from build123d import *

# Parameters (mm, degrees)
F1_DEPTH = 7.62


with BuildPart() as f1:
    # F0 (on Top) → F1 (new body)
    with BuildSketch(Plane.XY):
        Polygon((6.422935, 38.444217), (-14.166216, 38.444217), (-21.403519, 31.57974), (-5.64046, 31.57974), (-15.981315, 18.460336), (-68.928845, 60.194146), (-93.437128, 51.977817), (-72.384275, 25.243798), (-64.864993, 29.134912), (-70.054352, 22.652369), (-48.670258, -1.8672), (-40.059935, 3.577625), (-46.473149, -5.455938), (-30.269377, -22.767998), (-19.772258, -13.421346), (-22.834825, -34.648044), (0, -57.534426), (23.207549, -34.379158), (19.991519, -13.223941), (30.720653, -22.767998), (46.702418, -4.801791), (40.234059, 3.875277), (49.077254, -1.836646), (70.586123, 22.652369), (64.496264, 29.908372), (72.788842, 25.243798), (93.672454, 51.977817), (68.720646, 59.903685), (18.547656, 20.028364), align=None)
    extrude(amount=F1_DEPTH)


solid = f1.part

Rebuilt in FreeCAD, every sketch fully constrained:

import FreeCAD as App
import Part
import Sketcher
Q = App.Units.Quantity

doc = App.newDocument("Part")
params = doc.addObject("Spreadsheet::Sheet", "Params")
for row, (alias, value) in enumerate([
    ("pad1_length", "0.3 in"),
], start=1):
    params.set(f"A{row}", alias)
    params.set(f"B{row}", "=" + value)
    params.setAlias(f"B{row}", alias)

body = doc.addObject("PartDesign::Body", "Body")

# Sketch on XY plane
sketch1 = doc.addObject("Sketcher::SketchObject", "Sketch")
body.addObject(sketch1)
sketch1.AttachmentSupport = (doc.XY_Plane, [""])
sketch1.MapMode = "FlatFace"
sketch1.addGeometry(Part.LineSegment(App.Vector(6, 38, 0), App.Vector(-14, 38, 0)), False)
sketch1.addGeometry(Part.LineSegment(App.Vector(-14, 38, 0), App.Vector(-21, 32, 0)), False)
sketch1.addGeometry(Part.LineSegment(App.Vector(-21, 32, 0), App.Vector(-6, 32, 0)), False)
sketch1.addGeometry(Part.LineSegment(App.Vector(-6, 32, 0), App.Vector(-16, 18, 0)), False)
sketch1.addGeometry(Part.LineSegment(App.Vector(-16, 18, 0), App.Vector(-69, 60, 0)), False)
sketch1.addGeometry(Part.LineSegment(App.Vector(-69, 60, 0), App.Vector(-93, 52, 0)), False)
sketch1.addGeometry(Part.LineSegment(App.Vector(-93, 52, 0), App.Vector(-72, 25, 0)), False)
sketch1.addGeometry(Part.LineSegment(App.Vector(-72, 25, 0), App.Vector(-65, 29, 0)), False)
sketch1.addGeometry(Part.LineSegment(App.Vector(-65, 29, 0), App.Vector(-70, 23, 0)), False)
sketch1.addGeometry(Part.LineSegment(App.Vector(-70, 23, 0), App.Vector(-49, -2, 0)), False)
sketch1.addGeometry(Part.LineSegment(App.Vector(-49, -2, 0), App.Vector(-40, 4, 0)), False)
sketch1.addGeometry(Part.LineSegment(App.Vector(-40, 4, 0), App.Vector(-46, -5, 0)), False)
sketch1.addGeometry(Part.LineSegment(App.Vector(-46, -5, 0), App.Vector(-30, -23, 0)), False)
sketch1.addGeometry(Part.LineSegment(App.Vector(-30, -23, 0), App.Vector(-20, -13, 0)), False)
sketch1.addGeometry(Part.LineSegment(App.Vector(-20, -13, 0), App.Vector(-23, -35, 0)), False)
sketch1.addGeometry(Part.LineSegment(App.Vector(-23, -35, 0), App.Vector(0, -58, 0)), False)
sketch1.addGeometry(Part.LineSegment(App.Vector(0, -58, 0), App.Vector(23, -34, 0)), False)
sketch1.addGeometry(Part.LineSegment(App.Vector(23, -34, 0), App.Vector(20, -13, 0)), False)
sketch1.addGeometry(Part.LineSegment(App.Vector(20, -13, 0), App.Vector(31, -23, 0)), False)
sketch1.addGeometry(Part.LineSegment(App.Vector(31, -23, 0), App.Vector(47, -5, 0)), False)
sketch1.addGeometry(Part.LineSegment(App.Vector(47, -5, 0), App.Vector(40, 4, 0)), False)
sketch1.addGeometry(Part.LineSegment(App.Vector(40, 4, 0), App.Vector(49, -2, 0)), False)
sketch1.addGeometry(Part.LineSegment(App.Vector(49, -2, 0), App.Vector(71, 23, 0)), False)
sketch1.addGeometry(Part.LineSegment(App.Vector(71, 23, 0), App.Vector(64, 30, 0)), False)
sketch1.addGeometry(Part.LineSegment(App.Vector(64, 30, 0), App.Vector(73, 25, 0)), False)
sketch1.addGeometry(Part.LineSegment(App.Vector(73, 25, 0), App.Vector(94, 52, 0)), False)
sketch1.addGeometry(Part.LineSegment(App.Vector(94, 52, 0), App.Vector(69, 60, 0)), False)
sketch1.addGeometry(Part.LineSegment(App.Vector(69, 60, 0), App.Vector(19, 20, 0)), False)
sketch1.addGeometry(Part.LineSegment(App.Vector(19, 20, 0), App.Vector(6, 38, 0)), False)
sketch1.addConstraint(Sketcher.Constraint("Coincident", 0, 2, 1, 1))
sketch1.addConstraint(Sketcher.Constraint("Coincident", 1, 2, 2, 1))
sketch1.addConstraint(Sketcher.Constraint("Coincident", 2, 2, 3, 1))
sketch1.addConstraint(Sketcher.Constraint("Coincident", 3, 2, 4, 1))
sketch1.addConstraint(Sketcher.Constraint("Coincident", 4, 2, 5, 1))
sketch1.addConstraint(Sketcher.Constraint("Coincident", 5, 2, 6, 1))
sketch1.addConstraint(Sketcher.Constraint("Coincident", 6, 2, 7, 1))
sketch1.addConstraint(Sketcher.Constraint("Coincident", 7, 2, 8, 1))
sketch1.addConstraint(Sketcher.Constraint("Coincident", 8, 2, 9, 1))
sketch1.addConstraint(Sketcher.Constraint("Coincident", 9, 2, 10, 1))
sketch1.addConstraint(Sketcher.Constraint("Coincident", 10, 2, 11, 1))
sketch1.addConstraint(Sketcher.Constraint("Coincident", 11, 2, 12, 1))
sketch1.addConstraint(Sketcher.Constraint("Coincident", 12, 2, 13, 1))
sketch1.addConstraint(Sketcher.Constraint("Coincident", 13, 2, 14, 1))
sketch1.addConstraint(Sketcher.Constraint("Coincident", 14, 2, 15, 1))
sketch1.addConstraint(Sketcher.Constraint("Coincident", 15, 2, 16, 1))
sketch1.addConstraint(Sketcher.Constraint("Coincident", 16, 2, 17, 1))
sketch1.addConstraint(Sketcher.Constraint("Coincident", 17, 2, 18, 1))
sketch1.addConstraint(Sketcher.Constraint("Coincident", 18, 2, 19, 1))
sketch1.addConstraint(Sketcher.Constraint("Coincident", 19, 2, 20, 1))
sketch1.addConstraint(Sketcher.Constraint("Coincident", 20, 2, 21, 1))
sketch1.addConstraint(Sketcher.Constraint("Coincident", 21, 2, 22, 1))
sketch1.addConstraint(Sketcher.Constraint("Coincident", 22, 2, 23, 1))
sketch1.addConstraint(Sketcher.Constraint("Coincident", 23, 2, 24, 1))
sketch1.addConstraint(Sketcher.Constraint("Coincident", 24, 2, 25, 1))
sketch1.addConstraint(Sketcher.Constraint("Coincident", 25, 2, 26, 1))
sketch1.addConstraint(Sketcher.Constraint("Coincident", 26, 2, 27, 1))
sketch1.addConstraint(Sketcher.Constraint("Coincident", 27, 2, 28, 1))
sketch1.addConstraint(Sketcher.Constraint("Coincident", 28, 2, 0, 1))
sketch1.addConstraint(Sketcher.Constraint("Horizontal", 0))
sketch1.addConstraint(Sketcher.Constraint("Horizontal", 2))
sketch1.addConstraint(Sketcher.Constraint("PointOnObject", 15, 2, -2))
sketch1.addConstraint(Sketcher.Constraint("Perpendicular", 3, 4))
sketch1.addConstraint(Sketcher.Constraint("Perpendicular", 15, 16))
sketch1.addConstraint(Sketcher.Constraint("Perpendicular", 18, 19))
sketch1.addConstraint(Sketcher.Constraint("Horizontal", 12, 2, 18, 2))
sketch1.addConstraint(Sketcher.Constraint("Horizontal", 8, 2, 22, 2))
sketch1.addConstraint(Sketcher.Constraint("Horizontal", 6, 2, 24, 2))
sketch1.addConstraint(Sketcher.Constraint("Horizontal", 5, 2, 25, 2))
sketch1.addConstraint(Sketcher.Constraint("Distance", 6, Q("1.3396999 in")))
sketch1.addConstraint(Sketcher.Constraint("DistanceX", 0, 2, 0, 1, Q("20.589151 mm")))
sketch1.addConstraint(Sketcher.Constraint("DistanceX", 2, 1, 2, 2, Q("15.763059 mm")))
sketch1.addConstraint(Sketcher.Constraint("DistanceY", -1, 1, 6, 2, Q("25.243798 mm")))
sketch1.addConstraint(Sketcher.Constraint("DistanceY", 9, 2, -1, 1, Q("1.8672 mm")))
sketch1.addConstraint(Sketcher.Constraint("DistanceX", 3, 2, 0, 2, Q("1.815099 mm")))
sketch1.addConstraint(Sketcher.Constraint("DistanceY", 0, 2, 5, 2, Q("13.5336 mm")))
sketch1.addConstraint(Sketcher.Constraint("DistanceX", 9, 2, 13, 2, Q("28.898 mm")))
sketch1.addConstraint(Sketcher.Constraint("DistanceX", 17, 2, 19, 2, Q("26.710899 mm")))
sketch1.addConstraint(Sketcher.Constraint("DistanceX", 18, 2, 21, 2, Q("18.356601 mm")))
sketch1.addConstraint(Sketcher.Constraint("DistanceX", 21, 2, 25, 2, Q("44.5952 mm")))
sketch1.addConstraint(Sketcher.Constraint("Distance", 1, Q("9.974949 mm")))
sketch1.addConstraint(Sketcher.Constraint("Distance", 3, Q("16.704851 mm")))
sketch1.addConstraint(Sketcher.Constraint("Distance", 4, Q("67.417741 mm")))
sketch1.addConstraint(Sketcher.Constraint("Distance", 5, Q("25.848868 mm")))
sketch1.addConstraint(Sketcher.Constraint("Distance", 19, Q("24.045819 mm")))
sketch1.addConstraint(Sketcher.Constraint("Distance", 22, Q("32.593608 mm")))
sketch1.addConstraint(Sketcher.Constraint("Distance", 25, Q("33.92393 mm")))
sketch1.addConstraint(Sketcher.Constraint("DistanceX", 1, 2, -1, 1, Q("21.403519 mm")))
sketch1.addConstraint(Sketcher.Constraint("DistanceY", -1, 1, 1, 2, Q("31.57974 mm")))
sketch1.addConstraint(Sketcher.Constraint("DistanceX", 5, 2, -1, 1, Q("93.437128 mm")))
sketch1.addConstraint(Sketcher.Constraint("DistanceY", -1, 1, 7, 2, Q("29.134912 mm")))
sketch1.addConstraint(Sketcher.Constraint("DistanceX", 8, 2, -1, 1, Q("70.054352 mm")))
sketch1.addConstraint(Sketcher.Constraint("DistanceY", -1, 1, 8, 2, Q("22.652369 mm")))
sketch1.addConstraint(Sketcher.Constraint("DistanceX", 11, 2, -1, 1, Q("46.473149 mm")))
sketch1.addConstraint(Sketcher.Constraint("DistanceX", 13, 2, -1, 1, Q("19.772258 mm")))
sketch1.addConstraint(Sketcher.Constraint("DistanceX", -1, 1, 16, 2, Q("23.207549 mm")))
sketch1.addConstraint(Sketcher.Constraint("DistanceX", -1, 1, 17, 2, Q("19.991519 mm")))
sketch1.addConstraint(Sketcher.Constraint("DistanceY", 17, 2, -1, 1, Q("13.223941 mm")))
sketch1.addConstraint(Sketcher.Constraint("DistanceY", 19, 2, -1, 1, Q("4.801791 mm")))
sketch1.addConstraint(Sketcher.Constraint("DistanceX", -1, 1, 20, 2, Q("40.234059 mm")))
sketch1.addConstraint(Sketcher.Constraint("DistanceY", -1, 1, 23, 2, Q("29.908372 mm")))
sketch1.addConstraint(Sketcher.Constraint("DistanceX", 4, 2, 7, 2, Q("4.063852 mm")))
sketch1.addConstraint(Sketcher.Constraint("DistanceX", 10, 2, 3, 2, Q("24.07862 mm")))
sketch1.addConstraint(Sketcher.Constraint("DistanceY", 10, 2, 3, 2, Q("14.882711 mm")))
sketch1.addConstraint(Sketcher.Constraint("DistanceY", 11, 2, 7, 2, Q("34.59085 mm")))
sketch1.addConstraint(Sketcher.Constraint("DistanceX", 9, 2, 12, 2, Q("18.400881 mm")))
sketch1.addConstraint(Sketcher.Constraint("DistanceY", 12, 2, 13, 2, Q("9.346652 mm")))
sketch1.addConstraint(Sketcher.Constraint("DistanceX", 10, 2, 14, 2, Q("17.22511 mm")))
sketch1.addConstraint(Sketcher.Constraint("DistanceY", 14, 2, 10, 2, Q("38.225669 mm")))
sketch1.addConstraint(Sketcher.Constraint("DistanceY", 15, 2, 12, 2, Q("34.766428 mm")))
sketch1.addConstraint(Sketcher.Constraint("DistanceY", 17, 2, 20, 2, Q("17.099218 mm")))
sketch1.addConstraint(Sketcher.Constraint("DistanceY", 18, 2, 21, 2, Q("20.931352 mm")))
sketch1.addConstraint(Sketcher.Constraint("DistanceX", 23, 2, 22, 2, Q("6.089859 mm")))
sketch1.addConstraint(Sketcher.Constraint("DistanceX", 26, 2, 25, 2, Q("24.951808 mm")))
sketch1.addConstraint(Sketcher.Constraint("DistanceY", 25, 2, 26, 2, Q("7.925868 mm")))
sketch1.addConstraint(Sketcher.Constraint("DistanceX", 3, 2, 27, 2, Q("34.528971 mm")))
sketch1.addConstraint(Sketcher.Constraint("Distance", 27, Q("64.088768 mm")))
pad1 = doc.addObject("PartDesign::Pad", "Pad")
body.addObject(pad1)
pad1.Profile = sketch1
pad1.setExpression("Length", "Params.pad1_length")

doc.recompute()
